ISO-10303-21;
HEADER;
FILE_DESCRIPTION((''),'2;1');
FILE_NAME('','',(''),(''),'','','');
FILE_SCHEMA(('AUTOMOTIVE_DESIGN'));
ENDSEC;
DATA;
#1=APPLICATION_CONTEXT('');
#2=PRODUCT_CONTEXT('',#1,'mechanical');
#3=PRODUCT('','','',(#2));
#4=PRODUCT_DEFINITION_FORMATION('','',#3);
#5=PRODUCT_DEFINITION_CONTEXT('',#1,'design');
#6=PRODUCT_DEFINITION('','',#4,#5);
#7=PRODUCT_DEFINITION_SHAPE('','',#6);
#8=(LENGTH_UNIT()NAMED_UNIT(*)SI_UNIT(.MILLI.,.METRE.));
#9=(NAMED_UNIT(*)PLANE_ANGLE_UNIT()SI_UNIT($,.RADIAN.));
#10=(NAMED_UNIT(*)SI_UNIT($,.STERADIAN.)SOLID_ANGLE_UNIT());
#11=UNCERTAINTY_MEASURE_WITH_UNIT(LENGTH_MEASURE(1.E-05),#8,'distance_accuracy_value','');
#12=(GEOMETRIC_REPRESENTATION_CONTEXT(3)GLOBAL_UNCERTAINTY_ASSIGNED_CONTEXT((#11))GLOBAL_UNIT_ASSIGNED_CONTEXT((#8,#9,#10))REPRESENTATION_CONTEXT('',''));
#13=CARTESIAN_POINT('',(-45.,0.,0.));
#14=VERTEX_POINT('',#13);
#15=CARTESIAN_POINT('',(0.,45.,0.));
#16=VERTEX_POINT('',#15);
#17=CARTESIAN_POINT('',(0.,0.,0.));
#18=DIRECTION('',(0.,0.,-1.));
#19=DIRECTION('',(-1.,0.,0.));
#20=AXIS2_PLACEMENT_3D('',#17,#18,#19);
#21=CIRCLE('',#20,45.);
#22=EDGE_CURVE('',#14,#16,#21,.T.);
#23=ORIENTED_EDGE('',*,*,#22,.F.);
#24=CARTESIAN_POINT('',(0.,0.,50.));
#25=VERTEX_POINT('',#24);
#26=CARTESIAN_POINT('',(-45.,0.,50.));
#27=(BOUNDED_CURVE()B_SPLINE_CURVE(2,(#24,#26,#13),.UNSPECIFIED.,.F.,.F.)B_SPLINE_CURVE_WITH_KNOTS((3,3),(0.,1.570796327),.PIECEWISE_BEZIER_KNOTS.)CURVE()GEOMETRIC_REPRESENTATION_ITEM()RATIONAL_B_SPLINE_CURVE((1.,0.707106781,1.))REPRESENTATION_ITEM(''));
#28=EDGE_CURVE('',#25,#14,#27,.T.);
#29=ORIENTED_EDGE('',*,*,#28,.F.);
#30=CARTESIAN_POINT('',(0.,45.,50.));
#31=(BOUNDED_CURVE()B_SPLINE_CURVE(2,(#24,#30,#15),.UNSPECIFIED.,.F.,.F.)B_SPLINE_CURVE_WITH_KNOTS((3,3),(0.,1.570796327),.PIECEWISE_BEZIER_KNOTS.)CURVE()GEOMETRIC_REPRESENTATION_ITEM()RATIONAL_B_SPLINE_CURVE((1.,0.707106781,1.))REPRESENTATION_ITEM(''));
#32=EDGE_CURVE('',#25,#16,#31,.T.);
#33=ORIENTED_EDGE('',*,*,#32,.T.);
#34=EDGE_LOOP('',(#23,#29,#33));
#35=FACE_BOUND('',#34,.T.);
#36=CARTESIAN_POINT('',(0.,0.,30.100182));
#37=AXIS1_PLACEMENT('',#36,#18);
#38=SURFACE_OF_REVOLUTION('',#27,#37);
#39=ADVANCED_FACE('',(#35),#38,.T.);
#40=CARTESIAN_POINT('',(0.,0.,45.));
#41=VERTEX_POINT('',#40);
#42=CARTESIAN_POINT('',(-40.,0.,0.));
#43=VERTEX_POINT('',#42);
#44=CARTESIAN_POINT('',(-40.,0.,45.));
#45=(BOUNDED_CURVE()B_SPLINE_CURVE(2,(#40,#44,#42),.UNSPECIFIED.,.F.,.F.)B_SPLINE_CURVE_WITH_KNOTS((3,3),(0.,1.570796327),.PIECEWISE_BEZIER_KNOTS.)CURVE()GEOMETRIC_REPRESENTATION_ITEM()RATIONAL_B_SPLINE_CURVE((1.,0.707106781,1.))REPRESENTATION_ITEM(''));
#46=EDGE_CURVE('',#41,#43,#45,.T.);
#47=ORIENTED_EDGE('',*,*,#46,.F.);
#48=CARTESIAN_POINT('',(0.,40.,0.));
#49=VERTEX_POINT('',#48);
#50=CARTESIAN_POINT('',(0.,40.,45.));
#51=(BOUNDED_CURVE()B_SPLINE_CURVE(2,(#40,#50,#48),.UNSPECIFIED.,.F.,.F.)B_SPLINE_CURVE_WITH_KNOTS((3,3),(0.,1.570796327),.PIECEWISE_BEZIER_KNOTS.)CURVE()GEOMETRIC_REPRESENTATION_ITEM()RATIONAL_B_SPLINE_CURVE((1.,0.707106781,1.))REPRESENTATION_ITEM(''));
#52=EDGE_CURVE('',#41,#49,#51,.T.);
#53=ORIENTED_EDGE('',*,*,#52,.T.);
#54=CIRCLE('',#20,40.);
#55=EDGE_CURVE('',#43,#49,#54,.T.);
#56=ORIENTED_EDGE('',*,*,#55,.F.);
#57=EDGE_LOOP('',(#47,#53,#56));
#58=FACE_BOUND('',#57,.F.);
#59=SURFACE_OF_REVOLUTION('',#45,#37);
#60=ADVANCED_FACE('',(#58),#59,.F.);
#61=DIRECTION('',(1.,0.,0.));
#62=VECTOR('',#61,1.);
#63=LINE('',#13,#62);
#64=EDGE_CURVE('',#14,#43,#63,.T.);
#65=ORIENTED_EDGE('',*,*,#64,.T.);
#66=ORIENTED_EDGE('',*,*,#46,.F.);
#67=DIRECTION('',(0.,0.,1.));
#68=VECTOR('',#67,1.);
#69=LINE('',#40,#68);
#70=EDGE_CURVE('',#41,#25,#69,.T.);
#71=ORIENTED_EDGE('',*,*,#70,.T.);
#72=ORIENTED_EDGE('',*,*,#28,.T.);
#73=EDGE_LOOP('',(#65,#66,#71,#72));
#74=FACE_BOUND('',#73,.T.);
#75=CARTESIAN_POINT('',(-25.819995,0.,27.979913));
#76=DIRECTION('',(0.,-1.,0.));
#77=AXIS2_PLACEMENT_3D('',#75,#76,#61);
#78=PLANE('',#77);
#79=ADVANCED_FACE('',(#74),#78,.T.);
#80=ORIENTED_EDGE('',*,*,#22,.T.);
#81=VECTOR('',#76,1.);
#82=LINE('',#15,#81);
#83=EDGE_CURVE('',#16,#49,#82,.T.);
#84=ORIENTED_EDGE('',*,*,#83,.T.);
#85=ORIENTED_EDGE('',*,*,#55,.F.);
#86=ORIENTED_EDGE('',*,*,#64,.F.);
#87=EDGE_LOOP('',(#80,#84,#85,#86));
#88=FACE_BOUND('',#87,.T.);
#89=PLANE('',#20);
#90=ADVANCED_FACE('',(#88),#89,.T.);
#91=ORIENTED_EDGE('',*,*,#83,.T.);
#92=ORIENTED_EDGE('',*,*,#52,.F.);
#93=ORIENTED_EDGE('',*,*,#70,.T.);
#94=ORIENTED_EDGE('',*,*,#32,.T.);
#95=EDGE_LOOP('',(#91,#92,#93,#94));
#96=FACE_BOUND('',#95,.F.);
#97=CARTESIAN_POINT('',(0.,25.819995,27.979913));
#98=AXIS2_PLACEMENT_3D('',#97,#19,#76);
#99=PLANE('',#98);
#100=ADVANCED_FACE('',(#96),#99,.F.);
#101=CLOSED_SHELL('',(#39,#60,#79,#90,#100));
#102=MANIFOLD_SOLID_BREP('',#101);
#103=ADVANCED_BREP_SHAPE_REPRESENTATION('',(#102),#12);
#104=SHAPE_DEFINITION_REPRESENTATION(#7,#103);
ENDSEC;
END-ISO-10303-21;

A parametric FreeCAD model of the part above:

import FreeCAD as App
import Part
import Sketcher

V = App.Vector

doc = App.newDocument("Part")
body = doc.addObject("PartDesign::Body", "Body")

# Sketch on XZ plane
sketch1 = body.newObject("Sketcher::SketchObject", "Sketch")
sketch1.AttachmentSupport = (doc.getObject("XZ_Plane"), [""])
sketch1.MapMode = "FlatFace"
sketch1.addGeometry(Part.LineSegment(V(0, 45, 0), V(0, 50, 0)), False)
sketch1.addGeometry(Part.BSplineCurve([V(0, 50, 0), V(-45, 50, 0), V(-45, 0, 0)], [3, 3], [0, 1.570796327], False, 2, [1, 0.707106781, 1], False), False)
sketch1.addGeometry(Part.LineSegment(V(-45, 0, 0), V(-40, 0, 0)), False)
sketch1.addGeometry(Part.BSplineCurve([V(0, 45, 0), V(-40, 45, 0), V(-40, 0, 0)], [3, 3], [0, 1.570796327], False, 2, [1, 0.707106781, 1], False), False)
sketch1.addConstraint(Sketcher.Constraint("Block", 1))
sketch1.addConstraint(Sketcher.Constraint("Block", 3))
sketch1.addConstraint(Sketcher.Constraint("Coincident", 0, 2, 1, 1))
sketch1.addConstraint(Sketcher.Constraint("Coincident", 1, 2, 2, 1))
sketch1.addConstraint(Sketcher.Constraint("Coincident", 2, 2, 3, 2))
sketch1.addConstraint(Sketcher.Constraint("Coincident", 3, 1, 0, 1))
revolution = body.newObject("PartDesign::Revolution", "Revolution")
revolution.Profile = sketch1
revolution.ReferenceAxis = (sketch1, ["V_Axis"])
revolution.Angle = 90
revolution.Reversed = True

doc.recompute()
